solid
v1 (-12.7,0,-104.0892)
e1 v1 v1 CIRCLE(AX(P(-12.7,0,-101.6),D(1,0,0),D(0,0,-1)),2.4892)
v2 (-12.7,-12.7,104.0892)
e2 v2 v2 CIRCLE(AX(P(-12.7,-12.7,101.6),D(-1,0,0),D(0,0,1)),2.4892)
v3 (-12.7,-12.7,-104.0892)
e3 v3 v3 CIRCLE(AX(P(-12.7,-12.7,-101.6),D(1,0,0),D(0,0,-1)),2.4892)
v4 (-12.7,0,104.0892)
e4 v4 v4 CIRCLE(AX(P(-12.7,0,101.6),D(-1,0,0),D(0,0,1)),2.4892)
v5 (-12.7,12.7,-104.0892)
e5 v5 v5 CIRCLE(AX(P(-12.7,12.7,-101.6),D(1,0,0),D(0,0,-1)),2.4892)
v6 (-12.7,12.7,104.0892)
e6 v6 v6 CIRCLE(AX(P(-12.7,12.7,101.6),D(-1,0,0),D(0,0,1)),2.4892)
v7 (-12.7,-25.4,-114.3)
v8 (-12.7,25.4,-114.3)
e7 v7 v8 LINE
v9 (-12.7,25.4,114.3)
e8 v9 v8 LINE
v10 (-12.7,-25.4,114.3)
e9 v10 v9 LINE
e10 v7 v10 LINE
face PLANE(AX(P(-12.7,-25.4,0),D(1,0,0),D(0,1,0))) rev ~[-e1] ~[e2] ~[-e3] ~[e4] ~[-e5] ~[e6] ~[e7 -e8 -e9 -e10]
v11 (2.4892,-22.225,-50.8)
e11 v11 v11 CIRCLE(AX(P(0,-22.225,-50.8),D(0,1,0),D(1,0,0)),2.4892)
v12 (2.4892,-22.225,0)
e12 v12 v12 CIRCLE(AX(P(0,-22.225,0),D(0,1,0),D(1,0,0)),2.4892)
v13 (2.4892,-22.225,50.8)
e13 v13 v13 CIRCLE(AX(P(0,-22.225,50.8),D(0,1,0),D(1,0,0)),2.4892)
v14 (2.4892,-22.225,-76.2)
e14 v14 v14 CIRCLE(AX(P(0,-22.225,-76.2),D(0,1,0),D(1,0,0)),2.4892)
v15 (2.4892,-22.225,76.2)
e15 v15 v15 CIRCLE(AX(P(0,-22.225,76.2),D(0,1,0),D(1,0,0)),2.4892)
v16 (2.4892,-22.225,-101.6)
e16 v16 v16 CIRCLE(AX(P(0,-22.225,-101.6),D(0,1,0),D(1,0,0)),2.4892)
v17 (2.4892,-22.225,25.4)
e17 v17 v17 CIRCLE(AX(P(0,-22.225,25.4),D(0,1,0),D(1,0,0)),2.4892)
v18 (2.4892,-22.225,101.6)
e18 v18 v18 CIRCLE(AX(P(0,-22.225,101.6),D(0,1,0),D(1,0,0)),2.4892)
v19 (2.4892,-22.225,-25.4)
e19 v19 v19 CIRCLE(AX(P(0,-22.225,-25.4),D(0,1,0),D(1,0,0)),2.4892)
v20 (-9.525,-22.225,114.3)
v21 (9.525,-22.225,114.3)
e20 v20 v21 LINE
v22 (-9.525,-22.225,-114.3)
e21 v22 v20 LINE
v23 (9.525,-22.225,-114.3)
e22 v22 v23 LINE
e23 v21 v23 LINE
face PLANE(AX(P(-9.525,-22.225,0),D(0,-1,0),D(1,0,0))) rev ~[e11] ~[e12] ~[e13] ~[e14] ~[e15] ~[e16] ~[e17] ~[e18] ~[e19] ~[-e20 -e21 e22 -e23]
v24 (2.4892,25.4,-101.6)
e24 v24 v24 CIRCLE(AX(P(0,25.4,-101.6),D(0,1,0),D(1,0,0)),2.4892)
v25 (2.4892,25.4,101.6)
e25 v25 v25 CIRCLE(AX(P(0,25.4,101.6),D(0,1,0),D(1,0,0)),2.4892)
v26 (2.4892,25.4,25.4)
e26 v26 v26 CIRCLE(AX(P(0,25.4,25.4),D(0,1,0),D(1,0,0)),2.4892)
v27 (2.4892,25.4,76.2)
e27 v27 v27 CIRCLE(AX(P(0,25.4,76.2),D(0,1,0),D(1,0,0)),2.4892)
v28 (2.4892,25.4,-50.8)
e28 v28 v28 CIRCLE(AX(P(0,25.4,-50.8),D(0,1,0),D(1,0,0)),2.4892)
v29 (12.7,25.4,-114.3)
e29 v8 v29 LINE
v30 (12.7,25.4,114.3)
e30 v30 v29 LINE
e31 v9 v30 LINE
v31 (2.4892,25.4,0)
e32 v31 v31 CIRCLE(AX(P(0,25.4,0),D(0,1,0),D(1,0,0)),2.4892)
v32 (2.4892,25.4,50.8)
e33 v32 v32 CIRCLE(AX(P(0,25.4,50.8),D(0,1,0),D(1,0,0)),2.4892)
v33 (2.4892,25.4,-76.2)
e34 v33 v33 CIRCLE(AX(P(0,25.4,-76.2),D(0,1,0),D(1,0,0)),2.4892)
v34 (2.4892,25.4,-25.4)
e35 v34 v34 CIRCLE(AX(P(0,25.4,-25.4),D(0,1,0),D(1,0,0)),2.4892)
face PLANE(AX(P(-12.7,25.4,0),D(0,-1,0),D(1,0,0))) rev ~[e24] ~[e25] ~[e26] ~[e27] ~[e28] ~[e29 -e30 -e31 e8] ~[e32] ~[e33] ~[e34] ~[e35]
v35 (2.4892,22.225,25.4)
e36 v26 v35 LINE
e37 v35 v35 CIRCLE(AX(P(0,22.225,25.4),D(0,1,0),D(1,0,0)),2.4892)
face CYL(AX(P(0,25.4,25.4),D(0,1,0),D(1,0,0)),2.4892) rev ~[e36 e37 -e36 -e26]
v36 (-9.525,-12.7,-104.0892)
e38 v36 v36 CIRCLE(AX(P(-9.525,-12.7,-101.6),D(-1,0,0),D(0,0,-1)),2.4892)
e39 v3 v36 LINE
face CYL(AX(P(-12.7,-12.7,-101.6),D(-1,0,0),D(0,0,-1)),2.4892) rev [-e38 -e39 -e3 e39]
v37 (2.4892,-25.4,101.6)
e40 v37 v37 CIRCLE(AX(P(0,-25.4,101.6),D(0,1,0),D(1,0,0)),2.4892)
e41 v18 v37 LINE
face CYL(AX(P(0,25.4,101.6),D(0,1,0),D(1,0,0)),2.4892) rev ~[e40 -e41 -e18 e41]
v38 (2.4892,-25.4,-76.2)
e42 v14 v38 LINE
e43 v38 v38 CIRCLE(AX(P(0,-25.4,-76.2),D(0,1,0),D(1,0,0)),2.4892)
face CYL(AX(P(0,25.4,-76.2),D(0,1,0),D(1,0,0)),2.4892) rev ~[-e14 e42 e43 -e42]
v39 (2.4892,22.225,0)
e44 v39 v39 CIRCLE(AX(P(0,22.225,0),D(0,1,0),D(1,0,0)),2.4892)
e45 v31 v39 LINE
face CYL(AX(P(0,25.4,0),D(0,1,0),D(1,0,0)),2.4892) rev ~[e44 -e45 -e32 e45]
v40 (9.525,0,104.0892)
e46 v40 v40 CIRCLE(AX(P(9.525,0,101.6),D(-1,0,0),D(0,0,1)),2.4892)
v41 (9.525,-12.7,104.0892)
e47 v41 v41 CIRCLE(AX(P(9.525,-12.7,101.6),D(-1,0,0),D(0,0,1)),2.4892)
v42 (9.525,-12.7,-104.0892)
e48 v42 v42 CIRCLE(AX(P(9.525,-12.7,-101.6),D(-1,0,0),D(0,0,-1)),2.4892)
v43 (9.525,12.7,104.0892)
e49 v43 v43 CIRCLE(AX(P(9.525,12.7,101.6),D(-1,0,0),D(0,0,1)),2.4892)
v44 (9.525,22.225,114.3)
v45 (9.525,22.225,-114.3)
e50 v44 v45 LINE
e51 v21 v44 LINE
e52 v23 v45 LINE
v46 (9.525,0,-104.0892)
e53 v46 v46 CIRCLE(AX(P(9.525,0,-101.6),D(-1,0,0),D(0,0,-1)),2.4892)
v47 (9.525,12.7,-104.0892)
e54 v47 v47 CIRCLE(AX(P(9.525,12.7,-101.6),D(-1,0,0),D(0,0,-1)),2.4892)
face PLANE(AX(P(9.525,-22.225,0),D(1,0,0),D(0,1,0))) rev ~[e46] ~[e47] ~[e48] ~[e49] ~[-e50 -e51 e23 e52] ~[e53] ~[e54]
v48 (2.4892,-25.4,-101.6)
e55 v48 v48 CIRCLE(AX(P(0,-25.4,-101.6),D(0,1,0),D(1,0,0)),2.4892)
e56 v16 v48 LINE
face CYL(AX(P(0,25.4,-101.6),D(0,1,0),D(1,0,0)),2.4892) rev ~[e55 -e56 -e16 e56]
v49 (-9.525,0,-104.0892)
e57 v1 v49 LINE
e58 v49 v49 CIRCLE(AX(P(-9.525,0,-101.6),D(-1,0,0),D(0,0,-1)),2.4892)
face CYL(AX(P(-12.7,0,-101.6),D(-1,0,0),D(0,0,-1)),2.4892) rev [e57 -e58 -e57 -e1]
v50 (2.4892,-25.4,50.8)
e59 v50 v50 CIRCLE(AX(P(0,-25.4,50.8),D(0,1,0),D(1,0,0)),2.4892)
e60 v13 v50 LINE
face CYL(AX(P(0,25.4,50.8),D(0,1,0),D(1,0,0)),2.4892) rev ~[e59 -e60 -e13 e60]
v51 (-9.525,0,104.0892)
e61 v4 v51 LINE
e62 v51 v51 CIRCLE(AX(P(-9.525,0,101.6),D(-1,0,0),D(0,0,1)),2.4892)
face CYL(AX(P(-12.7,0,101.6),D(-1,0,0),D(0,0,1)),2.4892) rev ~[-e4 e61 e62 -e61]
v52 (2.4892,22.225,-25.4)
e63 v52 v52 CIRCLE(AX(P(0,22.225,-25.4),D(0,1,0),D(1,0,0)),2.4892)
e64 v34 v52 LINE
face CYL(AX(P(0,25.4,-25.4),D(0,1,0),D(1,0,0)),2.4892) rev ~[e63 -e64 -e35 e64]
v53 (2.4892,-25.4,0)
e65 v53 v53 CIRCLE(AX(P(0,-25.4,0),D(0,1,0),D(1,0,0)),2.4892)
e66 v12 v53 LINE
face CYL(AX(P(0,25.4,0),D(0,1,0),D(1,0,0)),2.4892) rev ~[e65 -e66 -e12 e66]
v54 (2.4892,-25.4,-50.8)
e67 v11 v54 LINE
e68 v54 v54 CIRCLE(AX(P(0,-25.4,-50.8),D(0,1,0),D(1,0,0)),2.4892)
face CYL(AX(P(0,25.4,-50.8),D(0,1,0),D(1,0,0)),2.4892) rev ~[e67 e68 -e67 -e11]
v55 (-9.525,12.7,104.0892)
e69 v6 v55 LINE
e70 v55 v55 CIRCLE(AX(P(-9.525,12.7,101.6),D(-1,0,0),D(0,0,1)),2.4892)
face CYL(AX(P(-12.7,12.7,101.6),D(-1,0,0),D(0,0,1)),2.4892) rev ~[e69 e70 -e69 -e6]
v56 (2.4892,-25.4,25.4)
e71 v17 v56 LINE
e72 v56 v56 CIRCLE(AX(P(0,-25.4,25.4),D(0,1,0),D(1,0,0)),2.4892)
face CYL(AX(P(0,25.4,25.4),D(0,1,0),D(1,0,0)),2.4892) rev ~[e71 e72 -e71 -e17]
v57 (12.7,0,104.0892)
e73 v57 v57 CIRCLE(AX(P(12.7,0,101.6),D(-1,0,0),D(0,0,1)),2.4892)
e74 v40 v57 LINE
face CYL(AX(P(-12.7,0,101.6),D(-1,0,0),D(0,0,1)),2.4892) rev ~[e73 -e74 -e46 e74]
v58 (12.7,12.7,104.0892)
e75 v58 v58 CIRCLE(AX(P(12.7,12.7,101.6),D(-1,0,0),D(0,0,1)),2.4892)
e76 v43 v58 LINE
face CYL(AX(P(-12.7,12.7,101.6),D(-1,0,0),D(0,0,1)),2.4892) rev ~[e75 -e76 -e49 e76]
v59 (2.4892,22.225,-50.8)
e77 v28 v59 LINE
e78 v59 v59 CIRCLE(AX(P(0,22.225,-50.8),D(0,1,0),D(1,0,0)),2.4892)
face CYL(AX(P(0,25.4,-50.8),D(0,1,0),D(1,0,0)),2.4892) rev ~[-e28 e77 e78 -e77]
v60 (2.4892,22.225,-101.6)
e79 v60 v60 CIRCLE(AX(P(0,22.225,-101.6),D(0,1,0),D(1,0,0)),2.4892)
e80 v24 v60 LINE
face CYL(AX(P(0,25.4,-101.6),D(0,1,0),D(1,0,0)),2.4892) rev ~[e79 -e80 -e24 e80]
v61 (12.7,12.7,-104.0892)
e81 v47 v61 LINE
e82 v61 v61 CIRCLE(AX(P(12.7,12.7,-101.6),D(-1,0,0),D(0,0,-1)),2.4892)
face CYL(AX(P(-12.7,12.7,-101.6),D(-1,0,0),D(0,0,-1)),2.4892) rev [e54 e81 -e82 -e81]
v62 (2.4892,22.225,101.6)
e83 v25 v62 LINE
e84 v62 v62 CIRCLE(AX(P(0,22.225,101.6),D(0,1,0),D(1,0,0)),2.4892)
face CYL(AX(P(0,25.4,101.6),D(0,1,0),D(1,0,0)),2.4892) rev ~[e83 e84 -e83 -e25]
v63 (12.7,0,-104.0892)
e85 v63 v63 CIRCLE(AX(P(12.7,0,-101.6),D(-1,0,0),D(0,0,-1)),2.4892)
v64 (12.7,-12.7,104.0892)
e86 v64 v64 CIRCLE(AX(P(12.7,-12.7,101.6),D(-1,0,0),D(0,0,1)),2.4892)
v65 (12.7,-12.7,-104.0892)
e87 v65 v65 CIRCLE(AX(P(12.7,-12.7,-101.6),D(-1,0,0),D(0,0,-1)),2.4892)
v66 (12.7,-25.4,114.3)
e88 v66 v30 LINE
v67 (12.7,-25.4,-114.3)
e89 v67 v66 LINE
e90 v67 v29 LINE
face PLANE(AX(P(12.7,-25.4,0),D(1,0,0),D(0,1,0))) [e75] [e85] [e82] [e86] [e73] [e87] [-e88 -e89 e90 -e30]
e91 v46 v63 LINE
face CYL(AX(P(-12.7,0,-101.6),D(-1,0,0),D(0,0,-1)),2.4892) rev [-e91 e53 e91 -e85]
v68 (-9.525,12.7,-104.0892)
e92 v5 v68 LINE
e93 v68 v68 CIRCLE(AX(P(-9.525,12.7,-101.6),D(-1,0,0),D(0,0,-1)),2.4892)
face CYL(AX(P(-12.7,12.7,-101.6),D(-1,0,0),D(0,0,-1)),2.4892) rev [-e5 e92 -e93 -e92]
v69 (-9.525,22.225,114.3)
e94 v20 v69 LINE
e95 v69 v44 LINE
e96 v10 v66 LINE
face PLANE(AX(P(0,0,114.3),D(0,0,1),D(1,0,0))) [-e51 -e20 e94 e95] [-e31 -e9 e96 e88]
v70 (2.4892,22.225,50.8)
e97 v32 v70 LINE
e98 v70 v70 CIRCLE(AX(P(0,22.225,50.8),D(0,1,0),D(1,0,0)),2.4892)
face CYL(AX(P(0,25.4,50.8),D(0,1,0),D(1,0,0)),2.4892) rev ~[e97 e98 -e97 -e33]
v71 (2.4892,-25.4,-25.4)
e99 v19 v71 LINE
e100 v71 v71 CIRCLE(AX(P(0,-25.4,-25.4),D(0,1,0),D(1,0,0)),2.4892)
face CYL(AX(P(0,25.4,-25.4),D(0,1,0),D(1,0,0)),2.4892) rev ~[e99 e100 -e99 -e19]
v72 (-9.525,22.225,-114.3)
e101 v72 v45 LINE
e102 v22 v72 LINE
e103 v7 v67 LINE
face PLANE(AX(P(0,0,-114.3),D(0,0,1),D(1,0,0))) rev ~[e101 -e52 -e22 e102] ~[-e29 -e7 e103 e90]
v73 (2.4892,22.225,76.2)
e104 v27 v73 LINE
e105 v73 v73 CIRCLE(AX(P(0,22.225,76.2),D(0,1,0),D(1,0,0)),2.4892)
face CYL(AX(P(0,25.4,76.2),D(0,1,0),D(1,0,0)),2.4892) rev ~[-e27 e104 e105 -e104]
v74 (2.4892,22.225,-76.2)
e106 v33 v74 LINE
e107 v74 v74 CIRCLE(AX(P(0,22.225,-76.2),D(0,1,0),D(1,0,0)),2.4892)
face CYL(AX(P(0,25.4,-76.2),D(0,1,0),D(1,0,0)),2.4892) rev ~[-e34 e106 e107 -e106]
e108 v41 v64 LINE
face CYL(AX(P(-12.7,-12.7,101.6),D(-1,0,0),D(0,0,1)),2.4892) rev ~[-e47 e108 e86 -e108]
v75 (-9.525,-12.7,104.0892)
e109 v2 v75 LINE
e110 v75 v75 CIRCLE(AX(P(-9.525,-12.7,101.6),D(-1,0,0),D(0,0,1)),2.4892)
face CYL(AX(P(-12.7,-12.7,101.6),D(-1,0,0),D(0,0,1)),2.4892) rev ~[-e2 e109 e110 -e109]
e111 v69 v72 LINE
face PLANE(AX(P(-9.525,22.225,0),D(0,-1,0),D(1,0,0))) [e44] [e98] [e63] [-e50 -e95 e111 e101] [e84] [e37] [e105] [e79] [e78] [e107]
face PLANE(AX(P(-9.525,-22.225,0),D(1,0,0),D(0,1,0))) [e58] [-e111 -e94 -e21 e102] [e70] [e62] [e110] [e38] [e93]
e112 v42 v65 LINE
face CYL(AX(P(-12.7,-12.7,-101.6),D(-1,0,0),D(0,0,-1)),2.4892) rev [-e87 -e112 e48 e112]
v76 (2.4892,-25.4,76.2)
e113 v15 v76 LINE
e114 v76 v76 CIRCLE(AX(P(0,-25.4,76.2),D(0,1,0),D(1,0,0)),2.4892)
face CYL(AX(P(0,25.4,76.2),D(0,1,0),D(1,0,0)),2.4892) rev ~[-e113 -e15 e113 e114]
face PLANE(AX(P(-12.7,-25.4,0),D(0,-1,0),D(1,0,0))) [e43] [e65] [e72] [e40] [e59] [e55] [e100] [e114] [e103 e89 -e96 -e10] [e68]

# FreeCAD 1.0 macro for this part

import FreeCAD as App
import Part
import Sketcher
from FreeCAD import Vector
Q = App.Units.Quantity

doc = App.newDocument("Part")
body = doc.addObject("PartDesign::Body", "Body")

sketch1 = body.newObject("Sketcher::SketchObject", "Sketch")
sketch1.AttachmentSupport = (doc.getObject("XY_Plane"), [""])
sketch1.MapMode = "FlatFace"
sketch1.addGeometry([
    Part.LineSegment(Vector(-12.7, 25.4, 0), Vector(-12.7, -25.4, 0)),
    Part.LineSegment(Vector(-12.7, -25.4, 0), Vector(12.7, -25.4, 0)),
    Part.LineSegment(Vector(12.7, -25.4, 0), Vector(12.7, 25.4, 0)),
    Part.LineSegment(Vector(12.7, 25.4, 0), Vector(-12.7, 25.4, 0)),
    Part.LineSegment(Vector(9.525, -22.225, 0), Vector(-9.525, -22.225, 0)),
    Part.LineSegment(Vector(-9.525, -22.225, 0), Vector(-9.525, 22.225, 0)),
    Part.LineSegment(Vector(-9.525, 22.225, 0), Vector(9.525, 22.225, 0)),
    Part.LineSegment(Vector(9.525, 22.225, 0), Vector(9.525, -22.225, 0)),
], False)
sketch1.addConstraint([
    Sketcher.Constraint("Coincident", 0, 2, 1, 1),
    Sketcher.Constraint("Coincident", 1, 2, 2, 1),
    Sketcher.Constraint("Coincident", 2, 2, 3, 1),
    Sketcher.Constraint("Coincident", 3, 2, 0, 1),
    Sketcher.Constraint("Coincident", 4, 2, 5, 1),
    Sketcher.Constraint("Coincident", 5, 2, 6, 1),
    Sketcher.Constraint("Coincident", 6, 2, 7, 1),
    Sketcher.Constraint("Coincident", 7, 2, 4, 1),
    Sketcher.Constraint("Vertical", 0),
    Sketcher.Constraint("Horizontal", 1),
    Sketcher.Constraint("Vertical", 2),
    Sketcher.Constraint("Horizontal", 3),
    Sketcher.Constraint("Horizontal", 4),
    Sketcher.Constraint("Vertical", 5),
    Sketcher.Constraint("Horizontal", 6),
    Sketcher.Constraint("Vertical", 7),
    Sketcher.Constraint("Symmetric", 0, 2, 2, 2, -1, 1),
    Sketcher.Constraint("Symmetric", 4, 2, 6, 2, -1, 1),
    Sketcher.Constraint("DistanceX", 1, 1, 1, 2, Q("1 in")),
    Sketcher.Constraint("DistanceY", 0, 2, 0, 1, Q("2 in")),
    Sketcher.Constraint("DistanceX", 4, 2, 4, 1, Q("0.75 in")),
    Sketcher.Constraint("DistanceY", 5, 1, 5, 2, Q("1.75 in")),
])
pad1 = body.newObject("PartDesign::Pad", "Pad")
pad1.Profile = sketch1
pad1.Length = Q("9 in")
pad1.Midplane = True

sketch2 = body.newObject("Sketcher::SketchObject", "Sketch001")
sketch2.AttachmentSupport = (doc.getObject("XZ_Plane"), [""])
sketch2.MapMode = "FlatFace"
sketch2.AttachmentOffset = App.Placement(Vector(0, 0, -1 * 25.4), App.Rotation())
sketch2.addGeometry([
    Part.Circle(Vector(0, 101.6, 0), Vector(0, 0, 1), 2.4892),
    Part.Circle(Vector(0, 76.2, 0), Vector(0, 0, 1), 2.4892),
    Part.Circle(Vector(0, 50.8, 0), Vector(0, 0, 1), 2.4892),
    Part.Circle(Vector(0, 25.4, 0), Vector(0, 0, 1), 2.4892),
    Part.Circle(Vector(0, 0, 0), Vector(0, 0, 1), 2.4892),
    Part.Circle(Vector(0, -25.4, 0), Vector(0, 0, 1), 2.4892),
    Part.Circle(Vector(0, -50.8, 0), Vector(0, 0, 1), 2.4892),
    Part.Circle(Vector(0, -76.2, 0), Vector(0, 0, 1), 2.4892),
    Part.Circle(Vector(0, -101.6, 0), Vector(0, 0, 1), 2.4892),
], False)
sketch2.addConstraint([
    Sketcher.Constraint("Coincident", 4, 3, -1, 1),
    Sketcher.Constraint("Equal", 0, 1),
    Sketcher.Constraint("Equal", 1, 2),
    Sketcher.Constraint("Equal", 2, 3),
    Sketcher.Constraint("Equal", 3, 4),
    Sketcher.Constraint("Equal", 4, 5),
    Sketcher.Constraint("Equal", 5, 6),
    Sketcher.Constraint("Equal", 6, 7),
    Sketcher.Constraint("Equal", 7, 8),
    Sketcher.Constraint("Symmetric", 3, 3, 5, 3, -1, 1),
    Sketcher.Constraint("Symmetric", 2, 3, 6, 3, -1, 1),
    Sketcher.Constraint("Symmetric", 1, 3, 7, 3, -1, 1),
    Sketcher.Constraint("Symmetric", 0, 3, 8, 3, -1, 1),
    Sketcher.Constraint("PointOnObject", 0, 3, -2),
    Sketcher.Constraint("PointOnObject", 1, 3, -2),
    Sketcher.Constraint("PointOnObject", 2, 3, -2),
    Sketcher.Constraint("PointOnObject", 3, 3, -2),
    Sketcher.Constraint("Diameter", 0, Q("0.196 in")),
    Sketcher.Constraint("DistanceY", -1, 1, 0, 3, Q("4 in")),
    Sketcher.Constraint("DistanceY", -1, 1, 1, 3, Q("3 in")),
    Sketcher.Constraint("DistanceY", -1, 1, 2, 3, Q("2 in")),
    Sketcher.Constraint("DistanceY", -1, 1, 3, 3, Q("1 in")),
])
pocket1 = body.newObject("PartDesign::Pocket", "Pocket")
pocket1.Profile = sketch2
pocket1.Type = "ThroughAll"
pocket1.Reversed = True

sketch3 = body.newObject("Sketcher::SketchObject", "Sketch002")
sketch3.AttachmentSupport = (doc.getObject("YZ_Plane"), [""])
sketch3.MapMode = "FlatFace"
sketch3.AttachmentOffset = App.Placement(Vector(0, 0, -0.5 * 25.4), App.Rotation())
sketch3.addGeometry([
    Part.Circle(Vector(0, 101.6, 0), Vector(0, 0, 1), 2.4892),
    Part.Circle(Vector(-12.7, 101.6, 0), Vector(0, 0, 1), 2.4892),
    Part.Circle(Vector(12.7, 101.6, 0), Vector(0, 0, 1), 2.4892),
], False)
sketch3.addConstraint([
    Sketcher.Constraint("Equal", 0, 1),
    Sketcher.Constraint("Equal", 1, 2),
    Sketcher.Constraint("Symmetric", 1, 3, 2, 3, -2),
    Sketcher.Constraint("PointOnObject", 0, 3, -2),
    Sketcher.Constraint("Horizontal", 0, 3, 1, 3),
    Sketcher.Constraint("Diameter", 0, Q("0.196 in")),
    Sketcher.Constraint("DistanceY", -1, 1, 0, 3, Q("4 in")),
    Sketcher.Constraint("DistanceX", 1, 3, 2, 3, Q("1 in")),
])
pocket2 = body.newObject("PartDesign::Pocket", "Pocket001")
pocket2.Profile = sketch3
pocket2.Type = "ThroughAll"
pocket2.Reversed = True
doc.recompute()

mirrored = body.newObject("PartDesign::Mirrored", "Mirrored")
mirrored.Originals = [pocket2]
mirrored.MirrorPlane = (doc.getObject("XY_Plane"), [""])
body.Tip = mirrored

doc.recompute()
